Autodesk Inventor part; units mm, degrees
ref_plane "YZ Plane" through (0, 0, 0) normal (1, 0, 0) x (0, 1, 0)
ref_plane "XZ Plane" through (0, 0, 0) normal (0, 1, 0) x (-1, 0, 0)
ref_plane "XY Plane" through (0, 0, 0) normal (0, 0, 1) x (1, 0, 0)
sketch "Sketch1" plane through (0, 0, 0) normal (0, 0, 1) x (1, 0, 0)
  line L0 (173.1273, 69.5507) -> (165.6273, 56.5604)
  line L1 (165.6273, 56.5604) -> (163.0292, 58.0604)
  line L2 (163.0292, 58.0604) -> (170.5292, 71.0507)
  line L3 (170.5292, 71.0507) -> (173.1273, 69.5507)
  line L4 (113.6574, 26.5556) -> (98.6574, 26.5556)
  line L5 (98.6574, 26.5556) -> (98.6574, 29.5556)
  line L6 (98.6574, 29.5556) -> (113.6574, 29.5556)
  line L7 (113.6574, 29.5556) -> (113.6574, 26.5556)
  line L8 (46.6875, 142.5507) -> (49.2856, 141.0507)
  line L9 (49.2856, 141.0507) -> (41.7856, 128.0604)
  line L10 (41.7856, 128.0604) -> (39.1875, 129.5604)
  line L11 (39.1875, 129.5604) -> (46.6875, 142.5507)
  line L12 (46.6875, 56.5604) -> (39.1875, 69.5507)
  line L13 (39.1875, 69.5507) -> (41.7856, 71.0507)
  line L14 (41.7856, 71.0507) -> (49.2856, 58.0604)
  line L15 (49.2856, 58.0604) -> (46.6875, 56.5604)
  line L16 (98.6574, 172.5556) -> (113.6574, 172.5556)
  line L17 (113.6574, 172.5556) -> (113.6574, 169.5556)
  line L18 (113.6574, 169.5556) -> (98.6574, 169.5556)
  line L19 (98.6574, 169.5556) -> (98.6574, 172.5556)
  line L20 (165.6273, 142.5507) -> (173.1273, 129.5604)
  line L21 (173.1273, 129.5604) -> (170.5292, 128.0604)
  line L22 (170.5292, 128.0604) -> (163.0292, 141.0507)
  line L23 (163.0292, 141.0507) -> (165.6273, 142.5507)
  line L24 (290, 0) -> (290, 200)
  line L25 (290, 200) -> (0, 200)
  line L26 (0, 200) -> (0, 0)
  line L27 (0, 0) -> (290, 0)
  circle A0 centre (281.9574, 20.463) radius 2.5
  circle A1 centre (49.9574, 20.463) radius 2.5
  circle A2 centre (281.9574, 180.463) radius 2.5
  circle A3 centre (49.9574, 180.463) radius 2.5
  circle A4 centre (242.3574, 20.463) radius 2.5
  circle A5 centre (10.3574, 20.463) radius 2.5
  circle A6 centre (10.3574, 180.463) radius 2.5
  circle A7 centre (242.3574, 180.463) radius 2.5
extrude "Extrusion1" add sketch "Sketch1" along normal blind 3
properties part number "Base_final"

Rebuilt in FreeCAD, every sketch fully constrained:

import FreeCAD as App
import Part
import Sketcher
Q = App.Units.Quantity

doc = App.newDocument("Part")
body = doc.addObject("PartDesign::Body", "Body")

# Sketch on XY plane
sketch1 = doc.addObject("Sketcher::SketchObject", "Sketch")
body.addObject(sketch1)
sketch1.AttachmentSupport = (doc.XY_Plane, [""])
sketch1.MapMode = "FlatFace"
sketch1.addGeometry([
    Part.LineSegment(App.Vector(0, 0, 0), App.Vector(290, 0, 0)),  # 0
    Part.LineSegment(App.Vector(290, 0, 0), App.Vector(290, 200, 0)),  # 1
    Part.LineSegment(App.Vector(290, 200, 0), App.Vector(0, 200, 0)),  # 2
    Part.LineSegment(App.Vector(0, 200, 0), App.Vector(0, 0, 0)),  # 3
    Part.Circle(App.Vector(10.4, 20.5, 0), App.Vector(0, 0, 1), 2.5),  # 4
    Part.Circle(App.Vector(50, 20.5, 0), App.Vector(0, 0, 1), 2.5),  # 5
    Part.LineSegment(App.Vector(113.7, 29.6, 0), App.Vector(113.7, 26.6, 0)),  # 6
    Part.LineSegment(App.Vector(113.7, 26.6, 0), App.Vector(98.7, 26.6, 0)),  # 7
    Part.LineSegment(App.Vector(98.7, 26.6, 0), App.Vector(98.7, 29.6, 0)),  # 8
    Part.LineSegment(App.Vector(98.7, 29.6, 0), App.Vector(113.7, 29.6, 0)),  # 9
    Part.LineSegment(App.Vector(49.3, 58.1, 0), App.Vector(46.7, 56.6, 0)),  # 10
    Part.LineSegment(App.Vector(46.7, 56.6, 0), App.Vector(39.2, 69.6, 0)),  # 11
    Part.LineSegment(App.Vector(39.2, 69.6, 0), App.Vector(41.8, 71.1, 0)),  # 12
    Part.LineSegment(App.Vector(41.8, 71.1, 0), App.Vector(49.3, 58.1, 0)),  # 13
    Part.Circle(App.Vector(242.4, 20.5, 0), App.Vector(0, 0, 1), 2.5),  # 14
    Part.Circle(App.Vector(282, 20.5, 0), App.Vector(0, 0, 1), 2.5),  # 15
    Part.LineSegment(App.Vector(170.5, 71.1, 0), App.Vector(173.1, 69.6, 0)),  # 16
    Part.LineSegment(App.Vector(173.1, 69.6, 0), App.Vector(165.6, 56.6, 0)),  # 17
    Part.LineSegment(App.Vector(165.6, 56.6, 0), App.Vector(163, 58.1, 0)),  # 18
    Part.LineSegment(App.Vector(163, 58.1, 0), App.Vector(170.5, 71.1, 0)),  # 19
    Part.LineSegment(App.Vector(39.2, 129.6, 0), App.Vector(46.7, 142.6, 0)),  # 20
    Part.LineSegment(App.Vector(46.7, 142.6, 0), App.Vector(49.3, 141.1, 0)),  # 21
    Part.LineSegment(App.Vector(49.3, 141.1, 0), App.Vector(41.8, 128.1, 0)),  # 22
    Part.LineSegment(App.Vector(41.8, 128.1, 0), App.Vector(39.2, 129.6, 0)),  # 23
    Part.Circle(App.Vector(10.4, 180.5, 0), App.Vector(0, 0, 1), 2.5),  # 24
    Part.Circle(App.Vector(50, 180.5, 0), App.Vector(0, 0, 1), 2.5),  # 25
    Part.LineSegment(App.Vector(98.7, 169.6, 0), App.Vector(98.7, 172.6, 0)),  # 26
    Part.LineSegment(App.Vector(98.7, 172.6, 0), App.Vector(113.7, 172.6, 0)),  # 27
    Part.LineSegment(App.Vector(113.7, 172.6, 0), App.Vector(113.7, 169.6, 0)),  # 28
    Part.LineSegment(App.Vector(113.7, 169.6, 0), App.Vector(98.7, 169.6, 0)),  # 29
    Part.LineSegment(App.Vector(163, 141.1, 0), App.Vector(165.6, 142.6, 0)),  # 30
    Part.LineSegment(App.Vector(165.6, 142.6, 0), App.Vector(173.1, 129.6, 0)),  # 31
    Part.LineSegment(App.Vector(173.1, 129.6, 0), App.Vector(170.5, 128.1, 0)),  # 32
    Part.LineSegment(App.Vector(170.5, 128.1, 0), App.Vector(163, 141.1, 0)),  # 33
    Part.Circle(App.Vector(242.4, 180.5, 0), App.Vector(0, 0, 1), 2.5),  # 34
    Part.Circle(App.Vector(282, 180.5, 0), App.Vector(0, 0, 1), 2.5),  # 35
], False)
sketch1.addConstraint([
    Sketcher.Constraint("Coincident", 0, 2, 1, 1),
    Sketcher.Constraint("Coincident", 1, 2, 2, 1),
    Sketcher.Constraint("Coincident", 2, 2, 3, 1),
    Sketcher.Constraint("Coincident", 3, 2, 0, 1),
    Sketcher.Constraint("Coincident", 6, 2, 7, 1),
    Sketcher.Constraint("Coincident", 7, 2, 8, 1),
    Sketcher.Constraint("Coincident", 8, 2, 9, 1),
    Sketcher.Constraint("Coincident", 9, 2, 6, 1),
    Sketcher.Constraint("Coincident", 10, 2, 11, 1),
    Sketcher.Constraint("Coincident", 11, 2, 12, 1),
    Sketcher.Constraint("Coincident", 12, 2, 13, 1),
    Sketcher.Constraint("Coincident", 13, 2, 10, 1),
    Sketcher.Constraint("Coincident", 16, 2, 17, 1),
    Sketcher.Constraint("Coincident", 17, 2, 18, 1),
    Sketcher.Constraint("Coincident", 18, 2, 19, 1),
    Sketcher.Constraint("Coincident", 19, 2, 16, 1),
    Sketcher.Constraint("Coincident", 20, 2, 21, 1),
    Sketcher.Constraint("Coincident", 21, 2, 22, 1),
    Sketcher.Constraint("Coincident", 22, 2, 23, 1),
    Sketcher.Constraint("Coincident", 23, 2, 20, 1),
    Sketcher.Constraint("Coincident", 26, 2, 27, 1),
    Sketcher.Constraint("Coincident", 27, 2, 28, 1),
    Sketcher.Constraint("Coincident", 28, 2, 29, 1),
    Sketcher.Constraint("Coincident", 29, 2, 26, 1),
    Sketcher.Constraint("Coincident", 30, 2, 31, 1),
    Sketcher.Constraint("Coincident", 31, 2, 32, 1),
    Sketcher.Constraint("Coincident", 32, 2, 33, 1),
    Sketcher.Constraint("Coincident", 33, 2, 30, 1),
    Sketcher.Constraint("Horizontal", 0),
    Sketcher.Constraint("Vertical", 1),
    Sketcher.Constraint("Horizontal", 2),
    Sketcher.Constraint("Vertical", 3),
    Sketcher.Constraint("Vertical", 6),
    Sketcher.Constraint("Horizontal", 7),
    Sketcher.Constraint("Vertical", 8),
    Sketcher.Constraint("Horizontal", 9),
    Sketcher.Constraint("Vertical", 26),
    Sketcher.Constraint("Horizontal", 27),
    Sketcher.Constraint("Vertical", 28),
    Sketcher.Constraint("Horizontal", 29),
    Sketcher.Constraint("Coincident", 3, 2, -1, 1),
    Sketcher.Constraint("Equal", 4, 5),
    Sketcher.Constraint("Equal", 5, 14),
    Sketcher.Constraint("Equal", 14, 15),
    Sketcher.Constraint("Equal", 15, 24),
    Sketcher.Constraint("Equal", 24, 25),
    Sketcher.Constraint("Equal", 25, 34),
    Sketcher.Constraint("Equal", 34, 35),
    Sketcher.Constraint("Perpendicular", 10, 11),
    Sketcher.Constraint("Perpendicular", 11, 12),
    Sketcher.Constraint("Perpendicular", 12, 13),
    Sketcher.Constraint("Perpendicular", 16, 17),
    Sketcher.Constraint("Perpendicular", 17, 18),
    Sketcher.Constraint("Perpendicular", 18, 19),
    Sketcher.Constraint("Parallel", 19, 20),
    Sketcher.Constraint("Perpendicular", 20, 21),
    Sketcher.Constraint("Perpendicular", 21, 22),
    Sketcher.Constraint("Perpendicular", 22, 23),
    Sketcher.Constraint("Perpendicular", 13, 30),
    Sketcher.Constraint("Perpendicular", 30, 31),
    Sketcher.Constraint("Perpendicular", 31, 32),
    Sketcher.Constraint("Perpendicular", 32, 33),
    Sketcher.Constraint("Horizontal", 4, 3, 5, 3),
    Sketcher.Constraint("Horizontal", 5, 3, 14, 3),
    Sketcher.Constraint("Horizontal", 14, 3, 15, 3),
    Sketcher.Constraint("Horizontal", 24, 3, 25, 3),
    Sketcher.Constraint("Horizontal", 25, 3, 34, 3),
    Sketcher.Constraint("Horizontal", 34, 3, 35, 3),
    Sketcher.Constraint("Horizontal", 11, 2, 16, 2),
    Sketcher.Constraint("Horizontal", 10, 2, 17, 2),
    Sketcher.Constraint("Horizontal", 13, 2, 18, 2),
    Sketcher.Constraint("Horizontal", 20, 2, 30, 2),
    Sketcher.Constraint("Horizontal", 23, 2, 31, 2),
    Sketcher.Constraint("Horizontal", 22, 2, 32, 2),
    Sketcher.Constraint("Vertical", 4, 3, 24, 3),
    Sketcher.Constraint("Vertical", 5, 3, 25, 3),
    Sketcher.Constraint("Vertical", 14, 3, 34, 3),
    Sketcher.Constraint("Vertical", 15, 3, 35, 3),
    Sketcher.Constraint("Vertical", 10, 2, 20, 2),
    Sketcher.Constraint("Vertical", 13, 2, 21, 2),
    Sketcher.Constraint("Vertical", 12, 2, 22, 2),
    Sketcher.Constraint("Vertical", 8, 2, 26, 2),
    Sketcher.Constraint("Vertical", 9, 2, 27, 2),
    Sketcher.Constraint("Vertical", 17, 2, 30, 2),
    Sketcher.Constraint("Vertical", 16, 2, 31, 2),
    Sketcher.Constraint("Equal", 8, 26),
    Sketcher.Constraint("Diameter", 4, Q("5 mm")),
    Sketcher.Constraint("DistanceX", 0, 1, 0, 2, Q("290 mm")),
    Sketcher.Constraint("DistanceX", 7, 2, 7, 1, Q("15 mm")),
    Sketcher.Constraint("DistanceY", 1, 1, 1, 2, Q("200 mm")),
    Sketcher.Constraint("DistanceY", 6, 2, 6, 1, Q("3 mm")),
    Sketcher.Constraint("Angle", 10, Q("-150.0002 deg")),
    Sketcher.Constraint("Distance", 10, Q("3 mm")),
    Sketcher.Constraint("Distance", 11, Q("15 mm")),
    Sketcher.Constraint("DistanceX", 4, 3, 14, 3, Q("232 mm")),
    Sketcher.Constraint("DistanceX", 5, 3, 15, 3, Q("232 mm")),
    Sketcher.Constraint("DistanceY", 4, 3, 24, 3, Q("160 mm")),
    Sketcher.Constraint("DistanceY", 11, 2, 20, 2, Q("73 mm")),
    Sketcher.Constraint("DistanceX", 4, 3, 5, 3, Q("39.6 mm")),
    Sketcher.Constraint("DistanceX", 5, 3, 6, 2, Q("63.7 mm")),
    Sketcher.Constraint("DistanceX", 10, 2, 5, 3, Q("3.27 mm")),
    Sketcher.Constraint("DistanceX", 9, 2, 16, 2, Q("59.47 mm")),
    Sketcher.Constraint("DistanceY", -1, 1, 4, 3, Q("20.463 mm")),
    Sketcher.Constraint("DistanceY", 8, 2, 11, 2, Q("39.995 mm")),
    Sketcher.Constraint("DistanceY", 21, 2, 26, 2, Q("31.505 mm")),
    Sketcher.Constraint("DistanceX", -1, 1, 4, 3, Q("10.3574 mm")),
    Sketcher.Constraint("DistanceY", -1, 1, 6, 2, Q("26.5556 mm")),
])
pad1 = doc.addObject("PartDesign::Pad", "Pad")
body.addObject(pad1)
pad1.Profile = sketch1
pad1.Length = 3

doc.recompute()
